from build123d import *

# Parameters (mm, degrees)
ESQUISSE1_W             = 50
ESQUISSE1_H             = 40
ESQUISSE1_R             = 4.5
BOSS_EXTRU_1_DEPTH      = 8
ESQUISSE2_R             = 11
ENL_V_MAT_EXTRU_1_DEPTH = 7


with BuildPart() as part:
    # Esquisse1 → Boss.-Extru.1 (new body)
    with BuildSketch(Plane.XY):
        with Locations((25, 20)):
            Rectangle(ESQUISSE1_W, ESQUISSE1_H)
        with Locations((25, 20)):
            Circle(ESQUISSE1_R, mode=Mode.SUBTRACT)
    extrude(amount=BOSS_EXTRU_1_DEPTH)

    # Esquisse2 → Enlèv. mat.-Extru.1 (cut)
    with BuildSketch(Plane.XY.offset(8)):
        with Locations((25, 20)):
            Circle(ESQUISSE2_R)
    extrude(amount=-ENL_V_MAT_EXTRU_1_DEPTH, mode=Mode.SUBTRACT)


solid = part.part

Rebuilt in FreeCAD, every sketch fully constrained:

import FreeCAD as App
import Part
import Sketcher

doc = App.newDocument("Part")
body = doc.addObject("PartDesign::Body", "Body")

# Sketch on XY plane
sketch1 = doc.addObject("Sketcher::SketchObject", "Sketch")
body.addObject(sketch1)
sketch1.AttachmentSupport = (doc.XY_Plane, [""])
sketch1.MapMode = "FlatFace"
sketch1.addGeometry([
    Part.LineSegment(App.Vector(0, 40, 0), App.Vector(0, 0, 0)),  # 0
    Part.LineSegment(App.Vector(0, 0, 0), App.Vector(50, 0, 0)),  # 1
    Part.LineSegment(App.Vector(50, 0, 0), App.Vector(50, 40, 0)),  # 2
    Part.LineSegment(App.Vector(50, 40, 0), App.Vector(0, 40, 0)),  # 3
    Part.Circle(App.Vector(25, 20, 0), App.Vector(0, 0, 1), 4.5),  # 4
], False)
sketch1.addConstraint([
    Sketcher.Constraint("Coincident", 0, 2, 1, 1),
    Sketcher.Constraint("Coincident", 1, 2, 2, 1),
    Sketcher.Constraint("Coincident", 2, 2, 3, 1),
    Sketcher.Constraint("Coincident", 3, 2, 0, 1),
    Sketcher.Constraint("Vertical", 0),
    Sketcher.Constraint("Horizontal", 1),
    Sketcher.Constraint("Vertical", 2),
    Sketcher.Constraint("Horizontal", 3),
    Sketcher.Constraint("Coincident", 0, 2, -1, 1),
    Sketcher.Constraint("Diameter", 4, 9.0),
    Sketcher.Constraint("DistanceX", 1, 1, 1, 2, 50.0),
    Sketcher.Constraint("DistanceY", 0, 2, 0, 1, 40.0),
    Sketcher.Constraint("DistanceX", -1, 1, 4, 3, 25.0),
    Sketcher.Constraint("DistanceY", -1, 1, 4, 3, 20.0),
])
pad1 = doc.addObject("PartDesign::Pad", "Pad")
body.addObject(pad1)
pad1.Profile = sketch1
pad1.Length = 8

# Sketch on XY plane
sketch2 = doc.addObject("Sketcher::SketchObject", "Sketch001")
body.addObject(sketch2)
sketch2.AttachmentSupport = (doc.XY_Plane, [""])
sketch2.MapMode = "FlatFace"
sketch2.AttachmentOffset = App.Placement(App.Vector(0, 0, 8), App.Rotation())
sketch2.addGeometry(Part.Circle(App.Vector(25, 20, 0), App.Vector(0, 0, 1), 11), False)
sketch2.addConstraint([
    Sketcher.Constraint("Diameter", 0, 22.0),
    Sketcher.Constraint("DistanceX", -1, 1, 0, 3, 25.0),
    Sketcher.Constraint("DistanceY", -1, 1, 0, 3, 20.0),
])
pocket1 = doc.addObject("PartDesign::Pocket", "Pocket")
body.addObject(pocket1)
pocket1.Profile = sketch2
pocket1.Length = 7

doc.recompute()
